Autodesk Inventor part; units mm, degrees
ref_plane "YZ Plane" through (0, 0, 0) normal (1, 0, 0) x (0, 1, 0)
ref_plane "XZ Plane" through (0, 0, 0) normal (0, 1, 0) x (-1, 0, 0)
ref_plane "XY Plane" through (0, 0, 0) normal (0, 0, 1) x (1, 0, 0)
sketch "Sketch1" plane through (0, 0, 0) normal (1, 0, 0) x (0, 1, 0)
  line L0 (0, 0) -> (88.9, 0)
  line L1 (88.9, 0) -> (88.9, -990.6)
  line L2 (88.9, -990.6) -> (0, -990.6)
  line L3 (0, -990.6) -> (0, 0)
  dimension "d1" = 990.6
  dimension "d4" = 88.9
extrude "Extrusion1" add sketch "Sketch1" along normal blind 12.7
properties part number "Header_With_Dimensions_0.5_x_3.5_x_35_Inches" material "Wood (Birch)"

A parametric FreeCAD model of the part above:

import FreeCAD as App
import Part
import Sketcher
from FreeCAD import Vector
Q = App.Units.Quantity


def add_polygon(sketch, points):
    """Adds a closed chain of lines whose ends are joined by coincident constraints."""
    first, n = sketch.GeometryCount, len(points)
    for a, b in zip(points, points[1:] + points[:1]):
        sketch.addGeometry(Part.LineSegment(App.Vector(*a, 0), App.Vector(*b, 0)), False)
    for i in range(n):
        sketch.addConstraint(Sketcher.Constraint("Coincident", first + i, 2, first + (i + 1) % n, 1))

doc = App.newDocument("Part")
params = doc.addObject("Spreadsheet::Sheet", "Params")
for row, (alias, value) in enumerate([
    ("sketch1_height", "39 in"),
    ("sketch1_width", "3.5 in"),
    ("pad1_length", "0.5 in"),
], start=1):
    params.set(f"A{row}", alias)
    params.set(f"B{row}", "=" + value)
    params.setAlias(f"B{row}", alias)

body = doc.addObject("PartDesign::Body", "Body")

# Sketch on YZ plane
sketch1 = body.newObject("Sketcher::SketchObject", "Sketch")
sketch1.AttachmentSupport = (doc.getObject("YZ_Plane"), [""])
sketch1.MapMode = "FlatFace"
add_polygon(sketch1, [(89, 0), (0, 0), (0, -991), (89, -991)])  # lines 0-3
sketch1.addConstraint([
    Sketcher.Constraint("Horizontal", 0),
    Sketcher.Constraint("Vertical", 1),
    Sketcher.Constraint("Horizontal", 2),
    Sketcher.Constraint("Vertical", 3),
    Sketcher.Constraint("Coincident", 0, 2, -1, 1),
    Sketcher.Constraint("DistanceY", 1, 2, 1, 1, Q("39 in")),
    Sketcher.Constraint("DistanceX", 0, 2, 0, 1, Q("3.5 in")),
])
sketch1.setExpression("Constraints[9]", "Params.sketch1_height")
sketch1.setExpression("Constraints[10]", "Params.sketch1_width")
pad1 = body.newObject("PartDesign::Pad", "Pad")
pad1.Profile = sketch1
pad1.setExpression("Length", "Params.pad1_length")

doc.recompute()
